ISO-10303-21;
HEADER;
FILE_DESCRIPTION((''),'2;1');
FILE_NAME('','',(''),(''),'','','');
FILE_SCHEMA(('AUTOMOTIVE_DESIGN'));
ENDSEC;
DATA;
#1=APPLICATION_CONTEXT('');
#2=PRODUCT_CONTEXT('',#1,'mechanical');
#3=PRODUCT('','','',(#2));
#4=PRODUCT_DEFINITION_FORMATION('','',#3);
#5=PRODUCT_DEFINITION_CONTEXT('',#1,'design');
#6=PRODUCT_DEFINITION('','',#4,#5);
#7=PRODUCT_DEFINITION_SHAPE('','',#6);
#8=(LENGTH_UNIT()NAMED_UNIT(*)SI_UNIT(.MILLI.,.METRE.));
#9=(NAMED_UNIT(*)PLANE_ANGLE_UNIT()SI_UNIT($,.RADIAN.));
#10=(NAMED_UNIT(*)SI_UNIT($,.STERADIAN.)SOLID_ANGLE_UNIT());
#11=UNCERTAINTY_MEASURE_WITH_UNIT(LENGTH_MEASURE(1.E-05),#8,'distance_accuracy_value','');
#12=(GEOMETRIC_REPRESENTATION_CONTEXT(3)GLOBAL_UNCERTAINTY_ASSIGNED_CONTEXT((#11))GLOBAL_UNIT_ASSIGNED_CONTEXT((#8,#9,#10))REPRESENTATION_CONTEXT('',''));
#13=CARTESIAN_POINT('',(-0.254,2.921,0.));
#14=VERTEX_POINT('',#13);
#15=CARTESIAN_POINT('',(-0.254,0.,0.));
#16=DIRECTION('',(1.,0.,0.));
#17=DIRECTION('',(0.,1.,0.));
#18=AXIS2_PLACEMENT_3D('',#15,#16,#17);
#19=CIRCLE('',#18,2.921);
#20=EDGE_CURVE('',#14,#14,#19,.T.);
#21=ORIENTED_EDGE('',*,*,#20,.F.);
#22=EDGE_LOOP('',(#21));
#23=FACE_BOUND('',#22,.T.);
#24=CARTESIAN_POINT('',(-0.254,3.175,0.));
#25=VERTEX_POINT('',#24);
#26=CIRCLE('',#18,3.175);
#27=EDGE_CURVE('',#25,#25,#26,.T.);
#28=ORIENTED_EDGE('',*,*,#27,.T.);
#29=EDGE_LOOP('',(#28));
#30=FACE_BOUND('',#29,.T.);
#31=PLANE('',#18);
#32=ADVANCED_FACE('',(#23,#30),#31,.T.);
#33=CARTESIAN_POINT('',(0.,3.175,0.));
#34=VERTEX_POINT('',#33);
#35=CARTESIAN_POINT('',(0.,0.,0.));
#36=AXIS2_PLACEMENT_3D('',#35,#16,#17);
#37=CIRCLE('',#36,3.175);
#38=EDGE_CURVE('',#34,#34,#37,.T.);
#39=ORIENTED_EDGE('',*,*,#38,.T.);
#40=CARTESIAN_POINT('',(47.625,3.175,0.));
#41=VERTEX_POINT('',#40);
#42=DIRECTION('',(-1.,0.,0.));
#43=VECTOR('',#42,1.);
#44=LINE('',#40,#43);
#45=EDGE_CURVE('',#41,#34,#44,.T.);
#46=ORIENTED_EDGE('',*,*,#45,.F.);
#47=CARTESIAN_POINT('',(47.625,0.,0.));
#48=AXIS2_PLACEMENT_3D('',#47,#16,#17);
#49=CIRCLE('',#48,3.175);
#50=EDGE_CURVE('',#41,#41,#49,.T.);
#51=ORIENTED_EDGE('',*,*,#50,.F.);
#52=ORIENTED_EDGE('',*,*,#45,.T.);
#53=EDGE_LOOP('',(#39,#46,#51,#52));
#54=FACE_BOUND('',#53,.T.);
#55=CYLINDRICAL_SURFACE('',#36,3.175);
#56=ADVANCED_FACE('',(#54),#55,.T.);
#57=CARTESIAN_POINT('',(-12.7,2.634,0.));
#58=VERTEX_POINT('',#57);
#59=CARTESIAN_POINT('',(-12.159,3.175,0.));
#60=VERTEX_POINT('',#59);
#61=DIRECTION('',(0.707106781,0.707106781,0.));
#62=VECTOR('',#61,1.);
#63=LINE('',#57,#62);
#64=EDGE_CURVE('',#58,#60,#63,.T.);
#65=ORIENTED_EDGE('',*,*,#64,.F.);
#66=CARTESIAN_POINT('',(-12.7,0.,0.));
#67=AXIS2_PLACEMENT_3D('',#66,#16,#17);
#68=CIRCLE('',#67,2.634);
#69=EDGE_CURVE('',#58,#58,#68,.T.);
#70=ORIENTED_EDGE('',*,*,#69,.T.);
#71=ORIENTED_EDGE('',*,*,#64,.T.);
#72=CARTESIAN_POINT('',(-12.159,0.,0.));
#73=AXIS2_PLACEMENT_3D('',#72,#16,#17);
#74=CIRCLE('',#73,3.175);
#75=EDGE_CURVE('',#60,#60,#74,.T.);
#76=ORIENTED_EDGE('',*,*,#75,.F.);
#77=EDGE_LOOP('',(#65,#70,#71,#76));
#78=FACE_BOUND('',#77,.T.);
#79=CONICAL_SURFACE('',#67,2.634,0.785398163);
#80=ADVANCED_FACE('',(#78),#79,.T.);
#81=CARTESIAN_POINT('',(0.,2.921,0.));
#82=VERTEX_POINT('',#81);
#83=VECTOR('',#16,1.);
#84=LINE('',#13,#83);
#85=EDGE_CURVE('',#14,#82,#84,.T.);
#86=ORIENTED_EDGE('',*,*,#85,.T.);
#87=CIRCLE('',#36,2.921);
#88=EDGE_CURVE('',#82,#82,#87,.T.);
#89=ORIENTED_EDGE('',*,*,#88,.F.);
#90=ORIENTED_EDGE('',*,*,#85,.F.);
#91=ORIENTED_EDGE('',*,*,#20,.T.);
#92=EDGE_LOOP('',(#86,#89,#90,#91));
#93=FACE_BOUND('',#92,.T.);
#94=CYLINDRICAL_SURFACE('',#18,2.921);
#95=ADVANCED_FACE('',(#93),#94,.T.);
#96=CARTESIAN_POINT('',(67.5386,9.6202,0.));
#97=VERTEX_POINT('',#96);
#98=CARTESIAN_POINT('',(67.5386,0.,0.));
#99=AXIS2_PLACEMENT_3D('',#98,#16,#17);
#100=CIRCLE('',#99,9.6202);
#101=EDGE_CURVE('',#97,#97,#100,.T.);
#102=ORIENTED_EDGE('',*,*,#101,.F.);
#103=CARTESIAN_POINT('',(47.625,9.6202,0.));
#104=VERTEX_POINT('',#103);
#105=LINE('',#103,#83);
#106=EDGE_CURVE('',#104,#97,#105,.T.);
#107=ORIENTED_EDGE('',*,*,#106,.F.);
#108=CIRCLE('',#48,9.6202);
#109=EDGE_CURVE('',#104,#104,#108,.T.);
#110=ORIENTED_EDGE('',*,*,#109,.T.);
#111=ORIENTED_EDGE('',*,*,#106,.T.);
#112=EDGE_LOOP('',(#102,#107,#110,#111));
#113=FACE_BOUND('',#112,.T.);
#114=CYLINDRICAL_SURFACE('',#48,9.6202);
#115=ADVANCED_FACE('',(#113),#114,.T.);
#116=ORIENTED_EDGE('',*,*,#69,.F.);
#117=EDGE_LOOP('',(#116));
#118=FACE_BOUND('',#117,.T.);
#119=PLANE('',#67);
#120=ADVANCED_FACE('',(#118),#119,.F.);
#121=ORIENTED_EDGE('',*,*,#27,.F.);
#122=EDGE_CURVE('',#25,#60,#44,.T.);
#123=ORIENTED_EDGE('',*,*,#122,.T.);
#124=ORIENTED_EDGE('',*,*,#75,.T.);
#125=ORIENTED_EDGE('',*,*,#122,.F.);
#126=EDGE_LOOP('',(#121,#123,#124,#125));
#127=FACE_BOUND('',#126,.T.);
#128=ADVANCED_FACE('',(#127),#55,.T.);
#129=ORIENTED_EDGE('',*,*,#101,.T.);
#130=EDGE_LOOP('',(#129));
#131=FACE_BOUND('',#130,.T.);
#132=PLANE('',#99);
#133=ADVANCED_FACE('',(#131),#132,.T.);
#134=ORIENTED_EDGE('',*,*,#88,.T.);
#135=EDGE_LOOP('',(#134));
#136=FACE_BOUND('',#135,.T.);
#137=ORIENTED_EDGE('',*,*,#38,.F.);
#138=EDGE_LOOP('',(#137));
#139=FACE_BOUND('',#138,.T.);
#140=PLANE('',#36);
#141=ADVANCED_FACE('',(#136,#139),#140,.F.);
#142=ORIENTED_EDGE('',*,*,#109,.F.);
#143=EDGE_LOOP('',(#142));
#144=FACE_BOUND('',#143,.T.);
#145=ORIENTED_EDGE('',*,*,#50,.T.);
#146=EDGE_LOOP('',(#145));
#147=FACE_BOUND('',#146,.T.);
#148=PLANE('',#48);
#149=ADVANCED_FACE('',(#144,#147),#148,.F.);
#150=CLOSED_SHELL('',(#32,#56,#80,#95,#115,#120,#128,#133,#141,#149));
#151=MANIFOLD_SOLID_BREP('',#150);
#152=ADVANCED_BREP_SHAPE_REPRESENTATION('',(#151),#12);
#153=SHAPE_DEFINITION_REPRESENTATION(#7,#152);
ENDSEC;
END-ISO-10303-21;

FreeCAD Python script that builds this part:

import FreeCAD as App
import Part
import Sketcher

V = App.Vector
Q = App.Units.Quantity


def add_polygon(sketch, points):
    """Adds a closed chain of lines whose ends are joined by coincident constraints."""
    first, n = sketch.GeometryCount, len(points)
    for a, b in zip(points, points[1:] + points[:1]):
        sketch.addGeometry(Part.LineSegment(App.Vector(*a, 0), App.Vector(*b, 0)), False)
    for i in range(n):
        sketch.addConstraint(Sketcher.Constraint("Coincident", first + i, 2, first + (i + 1) % n, 1))

doc = App.newDocument("Part")
params = doc.addObject("Spreadsheet::Sheet", "Params")
for row, (alias, value) in enumerate([
    ("sketch1_width", "2.659 in"),
    ("sketch1_width2", "0.784 in"),
    ("sketch1_height", "0.125 in"),
    ("revolution_angle", "360 deg"),
    ("sketch2_width", "0.5 in"),
    ("sketch2_height", "0.125 in"),
    ("revolution2_angle", "360 deg"),
    ("sketch3_width", "0.01 in"),
    ("sketch3_height", "0.02 in"),
    ("groove_angle", "360 deg"),
], start=1):
    params.set(f"A{row}", alias)
    params.set(f"B{row}", "=" + value)
    params.setAlias(f"B{row}", alias)

body = doc.addObject("PartDesign::Body", "Body")

sketch1 = doc.addObject("Sketcher::SketchObject", "Sketch")
body.addObject(sketch1)
sketch1.AttachmentSupport = (doc.XY_Plane, [""])
sketch1.MapMode = "FlatFace"
add_polygon(sketch1, [(0, 0), (67.5, 0), (67.5, 9.6), (47.6, 9.6), (47.6, 3.2), (0, 3.2)])
sketch1.addConstraint([
    Sketcher.Constraint("Horizontal", 0),
    Sketcher.Constraint("Vertical", 1),
    Sketcher.Constraint("Horizontal", 2),
    Sketcher.Constraint("Vertical", 3),
    Sketcher.Constraint("Horizontal", 4),
    Sketcher.Constraint("Vertical", 5),
    Sketcher.Constraint("Coincident", 5, 2, -1, 1),
    Sketcher.Constraint("DistanceX", 0, 1, 0, 2, Q("2.659 in")),
    Sketcher.Constraint("DistanceX", 2, 2, 2, 1, Q("0.784 in")),
    Sketcher.Constraint("DistanceY", 5, 2, 5, 1, Q("0.125 in")),
    Sketcher.Constraint("DistanceY", 1, 1, 1, 2, 9.6202),
])
sketch1.setExpression("Constraints[13]", "Params.sketch1_width")
sketch1.setExpression("Constraints[14]", "Params.sketch1_width2")
sketch1.setExpression("Constraints[15]", "Params.sketch1_height")
revolution = doc.addObject("PartDesign::Revolution", "Revolution")
body.addObject(revolution)
revolution.Profile = sketch1
revolution.ReferenceAxis = (sketch1, ["H_Axis"])
revolution.setExpression("Angle", "Params.revolution_angle")

sketch2 = doc.addObject("Sketcher::SketchObject", "Sketch001")
body.addObject(sketch2)
sketch2.AttachmentSupport = (doc.XY_Plane, [""])
sketch2.MapMode = "FlatFace"
add_polygon(sketch2, [(-12.7, 0), (0, 0), (0, 3.2), (-12.2, 3.2), (-12.7, 2.6)])
sketch2.addConstraint([
    Sketcher.Constraint("Horizontal", 0),
    Sketcher.Constraint("Vertical", 1),
    Sketcher.Constraint("Horizontal", 2),
    Sketcher.Constraint("Vertical", 4),
    Sketcher.Constraint("Coincident", 0, 2, -1, 1),
    Sketcher.Constraint("DistanceX", 0, 1, 0, 2, Q("0.5 in")),
    Sketcher.Constraint("Angle", 3, Q("-135 deg")),
    Sketcher.Constraint("DistanceY", 1, 1, 1, 2, Q("0.125 in")),
    Sketcher.Constraint("DistanceX", 2, 2, 2, 1, Q("0.4787 in")),
])
sketch2.setExpression("Constraints[10]", "Params.sketch2_width")
sketch2.setExpression("Constraints[12]", "Params.sketch2_height")
revolution2 = doc.addObject("PartDesign::Revolution", "Revolution001")
body.addObject(revolution2)
revolution2.Profile = sketch2
revolution2.ReferenceAxis = (sketch2, ["H_Axis"])
revolution2.setExpression("Angle", "Params.revolution2_angle")

sketch3 = doc.addObject("Sketcher::SketchObject", "Sketch002")
body.addObject(sketch3)
sketch3.AttachmentSupport = (doc.XY_Plane, [""])
sketch3.MapMode = "FlatFace"
add_polygon(sketch3, [(-0.25, 3.43), (-0.25, 2.92), (0, 2.92), (0, 3.43)])
sketch3.addConstraint([
    Sketcher.Constraint("Vertical", 0),
    Sketcher.Constraint("Horizontal", 1),
    Sketcher.Constraint("Vertical", 2),
    Sketcher.Constraint("Horizontal", 3),
    Sketcher.Constraint("PointOnObject", 1, 2, -2),
    Sketcher.Constraint("DistanceX", 1, 1, 1, 2, Q("0.01 in")),
    Sketcher.Constraint("DistanceY", 0, 2, 0, 1, Q("0.02 in")),
    Sketcher.Constraint("DistanceY", -1, 1, 0, 2, Q("0.115 in")),
])
sketch3.setExpression("Constraints[9]", "Params.sketch3_width")
sketch3.setExpression("Constraints[10]", "Params.sketch3_height")
groove = doc.addObject("PartDesign::Groove", "Groove")
body.addObject(groove)
groove.Profile = sketch3
groove.ReferenceAxis = (sketch3, ["H_Axis"])
groove.setExpression("Angle", "Params.groove_angle")

doc.recompute()
